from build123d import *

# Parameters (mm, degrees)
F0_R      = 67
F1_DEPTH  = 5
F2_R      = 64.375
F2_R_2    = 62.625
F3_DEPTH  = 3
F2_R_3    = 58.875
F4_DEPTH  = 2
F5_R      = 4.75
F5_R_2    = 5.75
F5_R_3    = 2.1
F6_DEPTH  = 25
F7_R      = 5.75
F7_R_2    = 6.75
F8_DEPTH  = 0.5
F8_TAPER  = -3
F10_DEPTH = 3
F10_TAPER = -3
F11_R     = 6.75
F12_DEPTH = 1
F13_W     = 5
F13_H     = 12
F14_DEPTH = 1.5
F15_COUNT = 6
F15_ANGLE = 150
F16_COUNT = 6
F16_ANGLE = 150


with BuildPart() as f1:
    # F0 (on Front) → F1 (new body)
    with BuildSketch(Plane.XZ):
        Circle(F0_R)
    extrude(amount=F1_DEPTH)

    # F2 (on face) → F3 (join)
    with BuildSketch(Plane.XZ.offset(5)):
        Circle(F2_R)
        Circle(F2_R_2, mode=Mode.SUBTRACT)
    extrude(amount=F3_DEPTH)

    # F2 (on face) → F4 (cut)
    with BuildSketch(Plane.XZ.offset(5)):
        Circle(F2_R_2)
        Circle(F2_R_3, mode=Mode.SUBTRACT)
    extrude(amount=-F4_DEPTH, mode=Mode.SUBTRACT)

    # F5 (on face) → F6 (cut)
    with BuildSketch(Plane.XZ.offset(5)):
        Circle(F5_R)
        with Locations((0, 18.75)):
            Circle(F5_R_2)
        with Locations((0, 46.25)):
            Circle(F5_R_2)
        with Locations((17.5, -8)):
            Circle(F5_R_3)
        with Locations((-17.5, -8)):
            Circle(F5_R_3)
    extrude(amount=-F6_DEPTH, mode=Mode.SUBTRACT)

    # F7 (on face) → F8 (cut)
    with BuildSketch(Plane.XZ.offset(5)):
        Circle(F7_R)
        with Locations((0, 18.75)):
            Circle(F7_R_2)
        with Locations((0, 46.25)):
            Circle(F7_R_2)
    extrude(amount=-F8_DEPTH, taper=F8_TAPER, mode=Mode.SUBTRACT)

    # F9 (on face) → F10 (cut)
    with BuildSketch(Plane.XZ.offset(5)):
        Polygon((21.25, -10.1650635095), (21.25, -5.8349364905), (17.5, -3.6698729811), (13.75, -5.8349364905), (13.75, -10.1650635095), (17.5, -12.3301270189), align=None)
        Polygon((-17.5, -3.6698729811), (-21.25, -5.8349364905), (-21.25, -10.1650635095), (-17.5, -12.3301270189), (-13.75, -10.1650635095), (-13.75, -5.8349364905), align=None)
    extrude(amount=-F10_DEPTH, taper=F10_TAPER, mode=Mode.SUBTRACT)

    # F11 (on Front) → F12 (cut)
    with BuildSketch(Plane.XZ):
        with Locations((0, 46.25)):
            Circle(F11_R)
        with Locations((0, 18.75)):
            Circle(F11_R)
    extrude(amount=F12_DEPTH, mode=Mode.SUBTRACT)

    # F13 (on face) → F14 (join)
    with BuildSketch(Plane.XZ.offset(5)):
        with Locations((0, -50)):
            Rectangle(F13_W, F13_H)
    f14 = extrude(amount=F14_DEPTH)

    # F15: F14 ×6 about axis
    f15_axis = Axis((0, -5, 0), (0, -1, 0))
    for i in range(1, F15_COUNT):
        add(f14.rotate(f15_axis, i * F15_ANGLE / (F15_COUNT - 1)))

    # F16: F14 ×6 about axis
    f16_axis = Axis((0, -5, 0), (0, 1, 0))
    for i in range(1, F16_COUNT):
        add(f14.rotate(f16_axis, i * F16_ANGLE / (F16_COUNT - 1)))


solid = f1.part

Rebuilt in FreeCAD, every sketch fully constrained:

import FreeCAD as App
import Part
import Sketcher

V = App.Vector
Q = App.Units.Quantity

doc = App.newDocument("Part")
body = doc.addObject("PartDesign::Body", "Body")

# Sketch on XZ plane
sketch1 = body.newObject("Sketcher::SketchObject", "Sketch")
sketch1.AttachmentSupport = (doc.getObject("XZ_Plane"), [""])
sketch1.MapMode = "FlatFace"
sketch1.addGeometry(Part.Circle(V(0, 0, 0), V(0, 0, 1), 67), False)
sketch1.addConstraint([
    Sketcher.Constraint("Coincident", 0, 3, -1, 1),
    Sketcher.Constraint("Diameter", 0, 134.0),
])
pad1 = body.newObject("PartDesign::Pad", "Pad")
pad1.Profile = sketch1
pad1.Length = 5

# Sketch on XZ plane
sketch2 = body.newObject("Sketcher::SketchObject", "Sketch001")
sketch2.AttachmentSupport = (doc.getObject("XZ_Plane"), [""])
sketch2.MapMode = "FlatFace"
sketch2.AttachmentOffset = App.Placement(V(0, 0, 5), App.Rotation())
sketch2.addGeometry([
    Part.Circle(V(0, 0, 0), V(0, 0, 1), 64),
    Part.Circle(V(0, 0, 0), V(0, 0, 1), 63),
], False)
sketch2.addConstraint([
    Sketcher.Constraint("Coincident", 0, 3, -1, 1),
    Sketcher.Constraint("Coincident", 1, 3, -1, 1),
    Sketcher.Constraint("Diameter", 0, 128.75),
    Sketcher.Constraint("Diameter", 1, 125.25),
])
pad2 = body.newObject("PartDesign::Pad", "Pad001")
pad2.Profile = sketch2
pad2.Length = 3

# Sketch on XZ plane
sketch3 = body.newObject("Sketcher::SketchObject", "Sketch002")
sketch3.AttachmentSupport = (doc.getObject("XZ_Plane"), [""])
sketch3.MapMode = "FlatFace"
sketch3.AttachmentOffset = App.Placement(V(0, 0, 5), App.Rotation())
sketch3.addGeometry([
    Part.Circle(V(0, 0, 0), V(0, 0, 1), 63),
    Part.Circle(V(0, 0, 0), V(0, 0, 1), 59),
], False)
sketch3.addConstraint([
    Sketcher.Constraint("Coincident", 0, 3, -1, 1),
    Sketcher.Constraint("Coincident", 1, 3, -1, 1),
    Sketcher.Constraint("Diameter", 0, 125.25),
    Sketcher.Constraint("Diameter", 1, 117.75),
])
pocket1 = body.newObject("PartDesign::Pocket", "Pocket")
pocket1.Profile = sketch3
pocket1.Length = 2

# Sketch on XZ plane
sketch4 = body.newObject("Sketcher::SketchObject", "Sketch003")
sketch4.AttachmentSupport = (doc.getObject("XZ_Plane"), [""])
sketch4.MapMode = "FlatFace"
sketch4.AttachmentOffset = App.Placement(V(0, 0, 5), App.Rotation())
sketch4.addGeometry([
    Part.Circle(V(0, 0, 0), V(0, 0, 1), 4.8),  # 0
    Part.Circle(V(0, 18.8, 0), V(0, 0, 1), 5.8),  # 1
    Part.Circle(V(0, 46.2, 0), V(0, 0, 1), 5.8),  # 2
    Part.Circle(V(17.5, -8, 0), V(0, 0, 1), 2.1),  # 3
    Part.Circle(V(-17.5, -8, 0), V(0, 0, 1), 2.1),  # 4
], False)
sketch4.addConstraint([
    Sketcher.Constraint("Coincident", 0, 3, -1, 1),
    Sketcher.Constraint("Equal", 1, 2),
    Sketcher.Constraint("Equal", 3, 4),
    Sketcher.Constraint("Symmetric", 3, 3, 4, 3, -2),
    Sketcher.Constraint("PointOnObject", 1, 3, -2),
    Sketcher.Constraint("PointOnObject", 2, 3, -2),
    Sketcher.Constraint("Diameter", 0, 9.5),
    Sketcher.Constraint("Diameter", 1, 11.5),
    Sketcher.Constraint("Diameter", 3, 4.2),
    Sketcher.Constraint("DistanceY", 3, 3, -1, 1, 8.0),
    Sketcher.Constraint("DistanceX", 4, 3, 3, 3, 35.0),
    Sketcher.Constraint("DistanceY", 1, 3, 2, 3, 27.5),
    Sketcher.Constraint("DistanceY", -1, 1, 1, 3, 18.75),
])
pocket2 = body.newObject("PartDesign::Pocket", "Pocket001")
pocket2.Profile = sketch4
pocket2.Length = 25

# Sketch on XZ plane
sketch5 = body.newObject("Sketcher::SketchObject", "Sketch004")
sketch5.AttachmentSupport = (doc.getObject("XZ_Plane"), [""])
sketch5.MapMode = "FlatFace"
sketch5.AttachmentOffset = App.Placement(V(0, 0, 5), App.Rotation())
sketch5.addGeometry([
    Part.Circle(V(0, 0, 0), V(0, 0, 1), 6),
    Part.Circle(V(0, 19, 0), V(0, 0, 1), 7),
    Part.Circle(V(0, 46, 0), V(0, 0, 1), 7),
], False)
sketch5.addConstraint([
    Sketcher.Constraint("Coincident", 0, 3, -1, 1),
    Sketcher.Constraint("Equal", 1, 2),
    Sketcher.Constraint("PointOnObject", 1, 3, -2),
    Sketcher.Constraint("PointOnObject", 2, 3, -2),
    Sketcher.Constraint("Diameter", 0, 11.5),
    Sketcher.Constraint("Diameter", 1, 13.5),
    Sketcher.Constraint("DistanceY", 1, 3, 2, 3, 27.5),
    Sketcher.Constraint("DistanceY", -1, 1, 1, 3, 18.75),
])
pocket3 = body.newObject("PartDesign::Pocket", "Pocket002")
pocket3.Profile = sketch5
pocket3.Length = 0.5
pocket3.TaperAngle = 3

# Sketch on XZ plane
sketch6 = body.newObject("Sketcher::SketchObject", "Sketch005")
sketch6.AttachmentSupport = (doc.getObject("XZ_Plane"), [""])
sketch6.MapMode = "FlatFace"
sketch6.AttachmentOffset = App.Placement(V(0, 0, 5), App.Rotation())
sketch6.addGeometry([
    Part.LineSegment(V(21.2, -10.2, 0), V(21.2, -5.8, 0)),  # 0
    Part.LineSegment(V(21.2, -5.8, 0), V(17.5, -3.7, 0)),  # 1
    Part.LineSegment(V(17.5, -3.7, 0), V(13.8, -5.8, 0)),  # 2
    Part.LineSegment(V(13.8, -5.8, 0), V(13.8, -10.2, 0)),  # 3
    Part.LineSegment(V(13.8, -10.2, 0), V(17.5, -12.3, 0)),  # 4
    Part.LineSegment(V(17.5, -12.3, 0), V(21.2, -10.2, 0)),  # 5
    Part.LineSegment(V(-17.5, -3.7, 0), V(-21.2, -5.8, 0)),  # 6
    Part.LineSegment(V(-21.2, -5.8, 0), V(-21.2, -10.2, 0)),  # 7
    Part.LineSegment(V(-21.2, -10.2, 0), V(-17.5, -12.3, 0)),  # 8
    Part.LineSegment(V(-17.5, -12.3, 0), V(-13.8, -10.2, 0)),  # 9
    Part.LineSegment(V(-13.8, -10.2, 0), V(-13.8, -5.8, 0)),  # 10
    Part.LineSegment(V(-13.8, -5.8, 0), V(-17.5, -3.7, 0)),  # 11
], False)
sketch6.addConstraint([
    Sketcher.Constraint("Coincident", 0, 2, 1, 1),
    Sketcher.Constraint("Coincident", 1, 2, 2, 1),
    Sketcher.Constraint("Coincident", 2, 2, 3, 1),
    Sketcher.Constraint("Coincident", 3, 2, 4, 1),
    Sketcher.Constraint("Coincident", 4, 2, 5, 1),
    Sketcher.Constraint("Coincident", 5, 2, 0, 1),
    Sketcher.Constraint("Coincident", 6, 2, 7, 1),
    Sketcher.Constraint("Coincident", 7, 2, 8, 1),
    Sketcher.Constraint("Coincident", 8, 2, 9, 1),
    Sketcher.Constraint("Coincident", 9, 2, 10, 1),
    Sketcher.Constraint("Coincident", 10, 2, 11, 1),
    Sketcher.Constraint("Coincident", 11, 2, 6, 1),
    Sketcher.Constraint("Vertical", 0),
    Sketcher.Constraint("Vertical", 3),
    Sketcher.Constraint("Vertical", 7),
    Sketcher.Constraint("Vertical", 10),
    Sketcher.Constraint("Symmetric", 0, 2, 6, 2, -2),
    Sketcher.Constraint("Symmetric", 4, 2, 8, 2, -2),
    Sketcher.Constraint("Symmetric", 3, 2, 9, 2, -2),
    Sketcher.Constraint("Symmetric", 1, 2, 11, 2, -2),
    Sketcher.Constraint("Parallel", 1, 4),
    Sketcher.Constraint("Parallel", 2, 5),
    Sketcher.Constraint("Parallel", 5, 6),
    Sketcher.Constraint("Parallel", 4, 8),
    Sketcher.Constraint("Parallel", 8, 11),
    Sketcher.Constraint("Horizontal", 0, 2, 2, 2),
    Sketcher.Constraint("Horizontal", 3, 2, 5, 2),
    Sketcher.Constraint("Angle", 1, Q("150 deg")),
    Sketcher.Constraint("DistanceX", 6, 2, 2, 2, 35.0),
    Sketcher.Constraint("DistanceX", 2, 2, 0, 2, 7.5),
    Sketcher.Constraint("DistanceY", 0, 1, 0, 2, 4.330127),
    Sketcher.Constraint("DistanceY", 0, 2, -1, 1, 5.834936),
])
pocket4 = body.newObject("PartDesign::Pocket", "Pocket003")
pocket4.Profile = sketch6
pocket4.Length = 3
pocket4.TaperAngle = 3

# Sketch on XZ plane
sketch7 = body.newObject("Sketcher::SketchObject", "Sketch006")
sketch7.AttachmentSupport = (doc.getObject("XZ_Plane"), [""])
sketch7.MapMode = "FlatFace"
sketch7.addGeometry([
    Part.Circle(V(0, 46, 0), V(0, 0, 1), 7),
    Part.Circle(V(0, 19, 0), V(0, 0, 1), 7),
], False)
sketch7.addConstraint([
    Sketcher.Constraint("Equal", 0, 1),
    Sketcher.Constraint("PointOnObject", 0, 3, -2),
    Sketcher.Constraint("PointOnObject", 1, 3, -2),
    Sketcher.Constraint("Diameter", 0, 13.5),
    Sketcher.Constraint("DistanceY", 1, 3, 0, 3, 27.5),
    Sketcher.Constraint("DistanceY", -1, 1, 0, 3, 46.25),
])
pocket5 = body.newObject("PartDesign::Pocket", "Pocket004")
pocket5.Profile = sketch7
pocket5.Length = 1
pocket5.Reversed = True

# Sketch on XZ plane
sketch8 = body.newObject("Sketcher::SketchObject", "Sketch007")
sketch8.AttachmentSupport = (doc.getObject("XZ_Plane"), [""])
sketch8.MapMode = "FlatFace"
sketch8.AttachmentOffset = App.Placement(V(0, 0, 5), App.Rotation())
sketch8.addGeometry([
    Part.LineSegment(V(-2, -44, 0), V(-2, -56, 0)),
    Part.LineSegment(V(-2, -56, 0), V(2, -56, 0)),
    Part.LineSegment(V(2, -56, 0), V(2, -44, 0)),
    Part.LineSegment(V(2, -44, 0), V(-2, -44, 0)),
], False)
sketch8.addConstraint([
    Sketcher.Constraint("Coincident", 0, 2, 1, 1),
    Sketcher.Constraint("Coincident", 1, 2, 2, 1),
    Sketcher.Constraint("Coincident", 2, 2, 3, 1),
    Sketcher.Constraint("Coincident", 3, 2, 0, 1),
    Sketcher.Constraint("Vertical", 0),
    Sketcher.Constraint("Horizontal", 1),
    Sketcher.Constraint("Vertical", 2),
    Sketcher.Constraint("Horizontal", 3),
    Sketcher.Constraint("DistanceX", 1, 1, 1, 2, 5.0),
    Sketcher.Constraint("DistanceY", 0, 2, 0, 1, 12.0),
    Sketcher.Constraint("DistanceY", 0, 2, -1, 1, 56.0),
    Sketcher.Constraint("DistanceX", 0, 2, -1, 1, 2.5),
])
pad3 = body.newObject("PartDesign::Pad", "Pad002")
pad3.Profile = sketch8
pad3.Length = 1.5
doc.recompute()

polarpattern = body.newObject("PartDesign::PolarPattern", "PolarPattern")
polarpattern.Originals = [pad3]
polarpattern.Axis = (doc.getObject("Y_Axis"), [""])
polarpattern.Angle = 150
polarpattern.Occurrences = 6
polarpattern.Reversed = True
body.Tip = polarpattern
doc.recompute()

polarpattern2 = body.newObject("PartDesign::PolarPattern", "PolarPattern001")
polarpattern2.Originals = [pad3]
polarpattern2.Axis = (doc.getObject("Y_Axis"), [""])
polarpattern2.Angle = 150
polarpattern2.Occurrences = 6
body.Tip = polarpattern2

doc.recompute()
